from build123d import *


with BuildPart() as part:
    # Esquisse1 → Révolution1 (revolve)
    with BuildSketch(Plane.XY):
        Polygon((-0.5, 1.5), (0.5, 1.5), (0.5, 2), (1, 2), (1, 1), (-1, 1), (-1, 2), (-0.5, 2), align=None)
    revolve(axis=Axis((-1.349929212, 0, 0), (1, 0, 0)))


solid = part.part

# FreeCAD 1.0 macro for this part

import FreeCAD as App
import Part
import Sketcher
Q = App.Units.Quantity


def add_polygon(sketch, points):
    """Adds a closed chain of lines whose ends are joined by coincident constraints."""
    first, n = sketch.GeometryCount, len(points)
    for a, b in zip(points, points[1:] + points[:1]):
        sketch.addGeometry(Part.LineSegment(App.Vector(*a, 0), App.Vector(*b, 0)), False)
    for i in range(n):
        sketch.addConstraint(Sketcher.Constraint("Coincident", first + i, 2, first + (i + 1) % n, 1))

doc = App.newDocument("Part")
params = doc.addObject("Spreadsheet::Sheet", "Params")
for row, (alias, value) in enumerate([
    ("sketch1_width", "1 mm"),
    ("sketch1_width2", "2 mm"),
    ("revolution_angle", "360 deg"),
], start=1):
    params.set(f"A{row}", alias)
    params.set(f"B{row}", "=" + value)
    params.setAlias(f"B{row}", alias)

body = doc.addObject("PartDesign::Body", "Body")

# Sketch on XY plane
sketch1 = doc.addObject("Sketcher::SketchObject", "Sketch")
body.addObject(sketch1)
sketch1.AttachmentSupport = (doc.XY_Plane, [""])
sketch1.MapMode = "FlatFace"
add_polygon(sketch1, [(0.5, 1.5), (-0.5, 1.5), (-0.5, 2), (-1, 2), (-1, 1), (1, 1), (1, 2), (0.5, 2)])  # lines 0-7
sketch1.addConstraint([
    Sketcher.Constraint("Horizontal", 0),
    Sketcher.Constraint("Vertical", 1),
    Sketcher.Constraint("Horizontal", 2),
    Sketcher.Constraint("Vertical", 3),
    Sketcher.Constraint("Horizontal", 4),
    Sketcher.Constraint("Vertical", 5),
    Sketcher.Constraint("Horizontal", 6),
    Sketcher.Constraint("Vertical", 7),
    Sketcher.Constraint("Symmetric", 2, 2, 5, 2, -2),
    Sketcher.Constraint("Equal", 2, 6),
    Sketcher.Constraint("Equal", 6, 1),
    Sketcher.Constraint("Equal", 0, 3),
    Sketcher.Constraint("DistanceX", 0, 2, 0, 1, Q("1 mm")),
    Sketcher.Constraint("DistanceX", 4, 1, 4, 2, Q("2 mm")),
    Sketcher.Constraint("DistanceY", -1, 1, 1, 2, Q("2 mm")),
])
sketch1.setExpression("Constraints[20]", "Params.sketch1_width")
sketch1.setExpression("Constraints[21]", "Params.sketch1_width2")
revolution = doc.addObject("PartDesign::Revolution", "Revolution")
body.addObject(revolution)
revolution.Profile = sketch1
revolution.ReferenceAxis = (sketch1, ["H_Axis"])
revolution.setExpression("Angle", "Params.revolution_angle")

doc.recompute()
